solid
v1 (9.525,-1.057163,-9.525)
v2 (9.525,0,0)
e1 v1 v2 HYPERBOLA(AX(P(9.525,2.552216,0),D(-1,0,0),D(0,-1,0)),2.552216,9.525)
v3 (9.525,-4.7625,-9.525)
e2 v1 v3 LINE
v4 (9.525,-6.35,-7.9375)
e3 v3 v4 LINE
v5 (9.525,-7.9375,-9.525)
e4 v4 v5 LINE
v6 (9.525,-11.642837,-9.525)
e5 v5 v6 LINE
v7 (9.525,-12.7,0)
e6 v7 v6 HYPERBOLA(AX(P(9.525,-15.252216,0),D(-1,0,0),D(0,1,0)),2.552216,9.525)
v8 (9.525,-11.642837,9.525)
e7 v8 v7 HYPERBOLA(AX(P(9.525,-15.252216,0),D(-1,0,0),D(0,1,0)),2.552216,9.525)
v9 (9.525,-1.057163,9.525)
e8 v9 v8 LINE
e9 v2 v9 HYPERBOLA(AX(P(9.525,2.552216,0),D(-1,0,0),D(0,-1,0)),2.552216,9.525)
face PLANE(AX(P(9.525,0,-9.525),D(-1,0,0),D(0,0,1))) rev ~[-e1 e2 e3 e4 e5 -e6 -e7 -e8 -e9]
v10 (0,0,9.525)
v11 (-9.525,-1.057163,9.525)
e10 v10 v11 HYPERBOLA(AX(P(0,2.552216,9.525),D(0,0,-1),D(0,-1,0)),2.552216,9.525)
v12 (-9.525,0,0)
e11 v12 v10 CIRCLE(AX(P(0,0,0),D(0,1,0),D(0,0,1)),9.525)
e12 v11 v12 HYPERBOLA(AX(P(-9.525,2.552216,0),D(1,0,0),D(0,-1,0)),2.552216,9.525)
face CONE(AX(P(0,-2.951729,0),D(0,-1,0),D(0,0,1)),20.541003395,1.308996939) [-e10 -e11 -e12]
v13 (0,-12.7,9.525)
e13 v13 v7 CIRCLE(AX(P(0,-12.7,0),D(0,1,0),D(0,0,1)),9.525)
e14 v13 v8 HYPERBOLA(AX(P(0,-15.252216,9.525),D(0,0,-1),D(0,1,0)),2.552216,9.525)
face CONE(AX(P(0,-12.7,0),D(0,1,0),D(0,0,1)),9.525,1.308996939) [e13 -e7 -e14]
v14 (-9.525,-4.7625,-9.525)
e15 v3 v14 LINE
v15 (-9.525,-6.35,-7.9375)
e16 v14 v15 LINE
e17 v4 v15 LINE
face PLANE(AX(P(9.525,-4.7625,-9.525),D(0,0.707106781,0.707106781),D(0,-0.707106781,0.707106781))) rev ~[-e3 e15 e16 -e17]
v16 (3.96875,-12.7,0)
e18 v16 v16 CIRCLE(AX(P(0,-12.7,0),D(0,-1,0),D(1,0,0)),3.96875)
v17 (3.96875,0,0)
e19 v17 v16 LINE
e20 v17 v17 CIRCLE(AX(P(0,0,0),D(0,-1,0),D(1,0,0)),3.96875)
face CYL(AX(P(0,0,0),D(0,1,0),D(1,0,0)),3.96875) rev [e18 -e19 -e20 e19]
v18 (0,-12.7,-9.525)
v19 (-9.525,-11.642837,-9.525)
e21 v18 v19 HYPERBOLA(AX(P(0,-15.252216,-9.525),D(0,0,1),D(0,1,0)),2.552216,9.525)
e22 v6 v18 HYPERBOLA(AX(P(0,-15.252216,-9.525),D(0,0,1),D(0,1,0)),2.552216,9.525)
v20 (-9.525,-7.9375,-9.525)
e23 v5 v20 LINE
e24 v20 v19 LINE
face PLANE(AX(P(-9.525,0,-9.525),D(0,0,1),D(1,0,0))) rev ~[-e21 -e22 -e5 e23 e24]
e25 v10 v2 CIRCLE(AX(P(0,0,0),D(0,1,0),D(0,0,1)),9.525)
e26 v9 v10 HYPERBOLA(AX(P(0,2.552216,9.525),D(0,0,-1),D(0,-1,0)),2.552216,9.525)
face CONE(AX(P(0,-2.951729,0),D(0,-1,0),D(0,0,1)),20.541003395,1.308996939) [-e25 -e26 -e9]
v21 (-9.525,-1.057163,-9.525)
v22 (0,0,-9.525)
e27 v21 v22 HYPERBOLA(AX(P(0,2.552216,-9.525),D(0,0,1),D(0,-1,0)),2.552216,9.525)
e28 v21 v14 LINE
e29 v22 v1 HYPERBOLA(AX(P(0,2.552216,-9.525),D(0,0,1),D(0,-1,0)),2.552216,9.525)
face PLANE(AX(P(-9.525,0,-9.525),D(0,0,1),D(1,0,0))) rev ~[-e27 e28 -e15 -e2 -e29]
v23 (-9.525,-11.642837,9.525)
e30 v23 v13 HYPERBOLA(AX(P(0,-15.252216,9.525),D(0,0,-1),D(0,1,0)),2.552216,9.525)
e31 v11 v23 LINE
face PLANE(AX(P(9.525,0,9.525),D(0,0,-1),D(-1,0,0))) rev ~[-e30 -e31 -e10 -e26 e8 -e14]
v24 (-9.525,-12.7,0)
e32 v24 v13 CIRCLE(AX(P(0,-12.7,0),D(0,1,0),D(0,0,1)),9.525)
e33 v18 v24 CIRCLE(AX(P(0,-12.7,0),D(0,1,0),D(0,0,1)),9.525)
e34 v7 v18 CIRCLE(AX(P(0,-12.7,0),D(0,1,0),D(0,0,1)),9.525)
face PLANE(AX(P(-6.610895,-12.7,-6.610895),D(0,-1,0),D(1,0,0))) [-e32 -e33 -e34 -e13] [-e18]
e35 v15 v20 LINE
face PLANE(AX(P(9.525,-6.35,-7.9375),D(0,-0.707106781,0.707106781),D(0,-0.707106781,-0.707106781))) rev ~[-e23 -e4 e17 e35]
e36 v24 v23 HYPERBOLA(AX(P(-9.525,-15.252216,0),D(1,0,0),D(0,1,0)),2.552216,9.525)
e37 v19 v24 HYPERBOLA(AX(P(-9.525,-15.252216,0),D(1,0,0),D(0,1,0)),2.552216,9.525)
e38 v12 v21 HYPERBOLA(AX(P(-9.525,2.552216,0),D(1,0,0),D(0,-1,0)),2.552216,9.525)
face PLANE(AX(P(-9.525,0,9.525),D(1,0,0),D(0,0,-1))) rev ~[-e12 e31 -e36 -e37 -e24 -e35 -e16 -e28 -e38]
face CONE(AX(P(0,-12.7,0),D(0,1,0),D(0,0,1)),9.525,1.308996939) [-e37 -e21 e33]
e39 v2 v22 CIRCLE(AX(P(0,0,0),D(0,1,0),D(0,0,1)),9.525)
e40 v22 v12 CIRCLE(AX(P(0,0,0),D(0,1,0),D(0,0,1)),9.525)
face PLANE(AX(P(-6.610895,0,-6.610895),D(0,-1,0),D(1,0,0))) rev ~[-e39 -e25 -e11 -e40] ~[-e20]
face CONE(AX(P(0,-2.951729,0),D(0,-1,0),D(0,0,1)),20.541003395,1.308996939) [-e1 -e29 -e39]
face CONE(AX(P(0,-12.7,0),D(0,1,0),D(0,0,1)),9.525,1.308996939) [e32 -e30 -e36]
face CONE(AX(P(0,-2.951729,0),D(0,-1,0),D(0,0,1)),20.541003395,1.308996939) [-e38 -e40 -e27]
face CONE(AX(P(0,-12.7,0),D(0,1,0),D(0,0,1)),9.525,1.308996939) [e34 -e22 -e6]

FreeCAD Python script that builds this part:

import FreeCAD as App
import Part
import Sketcher
Q = App.Units.Quantity


def add_polygon(sketch, points):
    """Adds a closed chain of lines whose ends are joined by coincident constraints."""
    first, n = sketch.GeometryCount, len(points)
    for a, b in zip(points, points[1:] + points[:1]):
        sketch.addGeometry(Part.LineSegment(App.Vector(*a, 0), App.Vector(*b, 0)), False)
    for i in range(n):
        sketch.addConstraint(Sketcher.Constraint("Coincident", first + i, 2, first + (i + 1) % n, 1))

doc = App.newDocument("Part")
body = doc.addObject("PartDesign::Body", "Body")

sketch1 = body.newObject("Sketcher::SketchObject", "Sketch")
sketch1.AttachmentSupport = (doc.getObject("XZ_Plane"), [""])
sketch1.MapMode = "FlatFace"
add_polygon(sketch1, [(-9.5, -9.5), (9.5, -9.5), (9.5, 9.5), (-9.5, 9.5)])
sketch1.addGeometry(Part.Circle(App.Vector(0, 0, 0), App.Vector(0, 0, 1), 4), False)
sketch1.addConstraint(Sketcher.Constraint("Horizontal", 0))
sketch1.addConstraint(Sketcher.Constraint("Vertical", 1))
sketch1.addConstraint(Sketcher.Constraint("Horizontal", 2))
sketch1.addConstraint(Sketcher.Constraint("Vertical", 3))
sketch1.addConstraint(Sketcher.Constraint("Coincident", 4, 3, -1, 1))
sketch1.addConstraint(Sketcher.Constraint("Symmetric", 0, 2, 2, 2, -1, 1))
sketch1.addConstraint(Sketcher.Constraint("Equal", 2, 1))
sketch1.addConstraint(Sketcher.Constraint("Diameter", 4, Q("0.3125 in")))
sketch1.addConstraint(Sketcher.Constraint("DistanceX", 0, 1, 0, 2, Q("0.75 in")))
pad1 = body.newObject("PartDesign::Pad", "Pad")
pad1.Profile = sketch1
pad1.Length = Q("0.5 in")

sketch2 = body.newObject("Sketcher::SketchObject", "Sketch001")
sketch2.AttachmentSupport = (doc.getObject("YZ_Plane"), [""])
sketch2.MapMode = "FlatFace"
sketch2.AttachmentOffset = App.Placement(App.Vector(0, 0, 0.375 * 25.4), App.Rotation())
add_polygon(sketch2, [(-4.8, -9.5), (-6.3, -7.9), (-7.9, -9.5)])
sketch2.addConstraint(Sketcher.Constraint("Horizontal", 2))
sketch2.addConstraint(Sketcher.Constraint("Perpendicular", 0, 1))
sketch2.addConstraint(Sketcher.Constraint("Equal", 0, 1))
sketch2.addConstraint(Sketcher.Constraint("DistanceX", 2, 1, 2, 2, Q("0.125 in")))
sketch2.addConstraint(Sketcher.Constraint("DistanceX", 0, 2, -1, 1, Q("0.25 in")))
sketch2.addConstraint(Sketcher.Constraint("DistanceY", 0, 2, -1, 1, Q("0.3125 in")))
pocket1 = body.newObject("PartDesign::Pocket", "Pocket")
pocket1.Profile = sketch2
pocket1.Length = Q("0.75 in")

sketch3 = body.newObject("Sketcher::SketchObject", "Sketch002")
sketch3.AttachmentSupport = (doc.getObject("YZ_Plane"), [""])
sketch3.MapMode = "FlatFace"
add_polygon(sketch3, [(-12.7, 20.5), (-12.7, 9.5), (-9.7, 20.5)])
add_polygon(sketch3, [(-3, 20.5), (0, 9.5), (0, 20.5)])
sketch3.addConstraint(Sketcher.Constraint("Vertical", 0))
sketch3.addConstraint(Sketcher.Constraint("Horizontal", 2))
sketch3.addConstraint(Sketcher.Constraint("Vertical", 4))
sketch3.addConstraint(Sketcher.Constraint("Horizontal", 5))
sketch3.addConstraint(Sketcher.Constraint("PointOnObject", 3, 2, -2))
sketch3.addConstraint(Sketcher.Constraint("Horizontal", 0, 2, 3, 2))
sketch3.addConstraint(Sketcher.Constraint("Horizontal", 2, 2, 4, 2))
sketch3.addConstraint(Sketcher.Constraint("Equal", 2, 5))
sketch3.addConstraint(Sketcher.Constraint("Angle", 1, Q("75 deg")))
sketch3.addConstraint(Sketcher.Constraint("DistanceX", 0, 2, -1, 1, Q("0.5 in")))
sketch3.addConstraint(Sketcher.Constraint("DistanceY", -1, 1, 0, 2, Q("0.375 in")))
sketch3.addConstraint(Sketcher.Constraint("DistanceX", 2, 2, 2, 1, Q("2.951729 mm")))
groove = body.newObject("PartDesign::Groove", "Groove")
groove.Profile = sketch3
groove.ReferenceAxis = (sketch3, ["H_Axis"])
groove.Angle = 360

doc.recompute()
